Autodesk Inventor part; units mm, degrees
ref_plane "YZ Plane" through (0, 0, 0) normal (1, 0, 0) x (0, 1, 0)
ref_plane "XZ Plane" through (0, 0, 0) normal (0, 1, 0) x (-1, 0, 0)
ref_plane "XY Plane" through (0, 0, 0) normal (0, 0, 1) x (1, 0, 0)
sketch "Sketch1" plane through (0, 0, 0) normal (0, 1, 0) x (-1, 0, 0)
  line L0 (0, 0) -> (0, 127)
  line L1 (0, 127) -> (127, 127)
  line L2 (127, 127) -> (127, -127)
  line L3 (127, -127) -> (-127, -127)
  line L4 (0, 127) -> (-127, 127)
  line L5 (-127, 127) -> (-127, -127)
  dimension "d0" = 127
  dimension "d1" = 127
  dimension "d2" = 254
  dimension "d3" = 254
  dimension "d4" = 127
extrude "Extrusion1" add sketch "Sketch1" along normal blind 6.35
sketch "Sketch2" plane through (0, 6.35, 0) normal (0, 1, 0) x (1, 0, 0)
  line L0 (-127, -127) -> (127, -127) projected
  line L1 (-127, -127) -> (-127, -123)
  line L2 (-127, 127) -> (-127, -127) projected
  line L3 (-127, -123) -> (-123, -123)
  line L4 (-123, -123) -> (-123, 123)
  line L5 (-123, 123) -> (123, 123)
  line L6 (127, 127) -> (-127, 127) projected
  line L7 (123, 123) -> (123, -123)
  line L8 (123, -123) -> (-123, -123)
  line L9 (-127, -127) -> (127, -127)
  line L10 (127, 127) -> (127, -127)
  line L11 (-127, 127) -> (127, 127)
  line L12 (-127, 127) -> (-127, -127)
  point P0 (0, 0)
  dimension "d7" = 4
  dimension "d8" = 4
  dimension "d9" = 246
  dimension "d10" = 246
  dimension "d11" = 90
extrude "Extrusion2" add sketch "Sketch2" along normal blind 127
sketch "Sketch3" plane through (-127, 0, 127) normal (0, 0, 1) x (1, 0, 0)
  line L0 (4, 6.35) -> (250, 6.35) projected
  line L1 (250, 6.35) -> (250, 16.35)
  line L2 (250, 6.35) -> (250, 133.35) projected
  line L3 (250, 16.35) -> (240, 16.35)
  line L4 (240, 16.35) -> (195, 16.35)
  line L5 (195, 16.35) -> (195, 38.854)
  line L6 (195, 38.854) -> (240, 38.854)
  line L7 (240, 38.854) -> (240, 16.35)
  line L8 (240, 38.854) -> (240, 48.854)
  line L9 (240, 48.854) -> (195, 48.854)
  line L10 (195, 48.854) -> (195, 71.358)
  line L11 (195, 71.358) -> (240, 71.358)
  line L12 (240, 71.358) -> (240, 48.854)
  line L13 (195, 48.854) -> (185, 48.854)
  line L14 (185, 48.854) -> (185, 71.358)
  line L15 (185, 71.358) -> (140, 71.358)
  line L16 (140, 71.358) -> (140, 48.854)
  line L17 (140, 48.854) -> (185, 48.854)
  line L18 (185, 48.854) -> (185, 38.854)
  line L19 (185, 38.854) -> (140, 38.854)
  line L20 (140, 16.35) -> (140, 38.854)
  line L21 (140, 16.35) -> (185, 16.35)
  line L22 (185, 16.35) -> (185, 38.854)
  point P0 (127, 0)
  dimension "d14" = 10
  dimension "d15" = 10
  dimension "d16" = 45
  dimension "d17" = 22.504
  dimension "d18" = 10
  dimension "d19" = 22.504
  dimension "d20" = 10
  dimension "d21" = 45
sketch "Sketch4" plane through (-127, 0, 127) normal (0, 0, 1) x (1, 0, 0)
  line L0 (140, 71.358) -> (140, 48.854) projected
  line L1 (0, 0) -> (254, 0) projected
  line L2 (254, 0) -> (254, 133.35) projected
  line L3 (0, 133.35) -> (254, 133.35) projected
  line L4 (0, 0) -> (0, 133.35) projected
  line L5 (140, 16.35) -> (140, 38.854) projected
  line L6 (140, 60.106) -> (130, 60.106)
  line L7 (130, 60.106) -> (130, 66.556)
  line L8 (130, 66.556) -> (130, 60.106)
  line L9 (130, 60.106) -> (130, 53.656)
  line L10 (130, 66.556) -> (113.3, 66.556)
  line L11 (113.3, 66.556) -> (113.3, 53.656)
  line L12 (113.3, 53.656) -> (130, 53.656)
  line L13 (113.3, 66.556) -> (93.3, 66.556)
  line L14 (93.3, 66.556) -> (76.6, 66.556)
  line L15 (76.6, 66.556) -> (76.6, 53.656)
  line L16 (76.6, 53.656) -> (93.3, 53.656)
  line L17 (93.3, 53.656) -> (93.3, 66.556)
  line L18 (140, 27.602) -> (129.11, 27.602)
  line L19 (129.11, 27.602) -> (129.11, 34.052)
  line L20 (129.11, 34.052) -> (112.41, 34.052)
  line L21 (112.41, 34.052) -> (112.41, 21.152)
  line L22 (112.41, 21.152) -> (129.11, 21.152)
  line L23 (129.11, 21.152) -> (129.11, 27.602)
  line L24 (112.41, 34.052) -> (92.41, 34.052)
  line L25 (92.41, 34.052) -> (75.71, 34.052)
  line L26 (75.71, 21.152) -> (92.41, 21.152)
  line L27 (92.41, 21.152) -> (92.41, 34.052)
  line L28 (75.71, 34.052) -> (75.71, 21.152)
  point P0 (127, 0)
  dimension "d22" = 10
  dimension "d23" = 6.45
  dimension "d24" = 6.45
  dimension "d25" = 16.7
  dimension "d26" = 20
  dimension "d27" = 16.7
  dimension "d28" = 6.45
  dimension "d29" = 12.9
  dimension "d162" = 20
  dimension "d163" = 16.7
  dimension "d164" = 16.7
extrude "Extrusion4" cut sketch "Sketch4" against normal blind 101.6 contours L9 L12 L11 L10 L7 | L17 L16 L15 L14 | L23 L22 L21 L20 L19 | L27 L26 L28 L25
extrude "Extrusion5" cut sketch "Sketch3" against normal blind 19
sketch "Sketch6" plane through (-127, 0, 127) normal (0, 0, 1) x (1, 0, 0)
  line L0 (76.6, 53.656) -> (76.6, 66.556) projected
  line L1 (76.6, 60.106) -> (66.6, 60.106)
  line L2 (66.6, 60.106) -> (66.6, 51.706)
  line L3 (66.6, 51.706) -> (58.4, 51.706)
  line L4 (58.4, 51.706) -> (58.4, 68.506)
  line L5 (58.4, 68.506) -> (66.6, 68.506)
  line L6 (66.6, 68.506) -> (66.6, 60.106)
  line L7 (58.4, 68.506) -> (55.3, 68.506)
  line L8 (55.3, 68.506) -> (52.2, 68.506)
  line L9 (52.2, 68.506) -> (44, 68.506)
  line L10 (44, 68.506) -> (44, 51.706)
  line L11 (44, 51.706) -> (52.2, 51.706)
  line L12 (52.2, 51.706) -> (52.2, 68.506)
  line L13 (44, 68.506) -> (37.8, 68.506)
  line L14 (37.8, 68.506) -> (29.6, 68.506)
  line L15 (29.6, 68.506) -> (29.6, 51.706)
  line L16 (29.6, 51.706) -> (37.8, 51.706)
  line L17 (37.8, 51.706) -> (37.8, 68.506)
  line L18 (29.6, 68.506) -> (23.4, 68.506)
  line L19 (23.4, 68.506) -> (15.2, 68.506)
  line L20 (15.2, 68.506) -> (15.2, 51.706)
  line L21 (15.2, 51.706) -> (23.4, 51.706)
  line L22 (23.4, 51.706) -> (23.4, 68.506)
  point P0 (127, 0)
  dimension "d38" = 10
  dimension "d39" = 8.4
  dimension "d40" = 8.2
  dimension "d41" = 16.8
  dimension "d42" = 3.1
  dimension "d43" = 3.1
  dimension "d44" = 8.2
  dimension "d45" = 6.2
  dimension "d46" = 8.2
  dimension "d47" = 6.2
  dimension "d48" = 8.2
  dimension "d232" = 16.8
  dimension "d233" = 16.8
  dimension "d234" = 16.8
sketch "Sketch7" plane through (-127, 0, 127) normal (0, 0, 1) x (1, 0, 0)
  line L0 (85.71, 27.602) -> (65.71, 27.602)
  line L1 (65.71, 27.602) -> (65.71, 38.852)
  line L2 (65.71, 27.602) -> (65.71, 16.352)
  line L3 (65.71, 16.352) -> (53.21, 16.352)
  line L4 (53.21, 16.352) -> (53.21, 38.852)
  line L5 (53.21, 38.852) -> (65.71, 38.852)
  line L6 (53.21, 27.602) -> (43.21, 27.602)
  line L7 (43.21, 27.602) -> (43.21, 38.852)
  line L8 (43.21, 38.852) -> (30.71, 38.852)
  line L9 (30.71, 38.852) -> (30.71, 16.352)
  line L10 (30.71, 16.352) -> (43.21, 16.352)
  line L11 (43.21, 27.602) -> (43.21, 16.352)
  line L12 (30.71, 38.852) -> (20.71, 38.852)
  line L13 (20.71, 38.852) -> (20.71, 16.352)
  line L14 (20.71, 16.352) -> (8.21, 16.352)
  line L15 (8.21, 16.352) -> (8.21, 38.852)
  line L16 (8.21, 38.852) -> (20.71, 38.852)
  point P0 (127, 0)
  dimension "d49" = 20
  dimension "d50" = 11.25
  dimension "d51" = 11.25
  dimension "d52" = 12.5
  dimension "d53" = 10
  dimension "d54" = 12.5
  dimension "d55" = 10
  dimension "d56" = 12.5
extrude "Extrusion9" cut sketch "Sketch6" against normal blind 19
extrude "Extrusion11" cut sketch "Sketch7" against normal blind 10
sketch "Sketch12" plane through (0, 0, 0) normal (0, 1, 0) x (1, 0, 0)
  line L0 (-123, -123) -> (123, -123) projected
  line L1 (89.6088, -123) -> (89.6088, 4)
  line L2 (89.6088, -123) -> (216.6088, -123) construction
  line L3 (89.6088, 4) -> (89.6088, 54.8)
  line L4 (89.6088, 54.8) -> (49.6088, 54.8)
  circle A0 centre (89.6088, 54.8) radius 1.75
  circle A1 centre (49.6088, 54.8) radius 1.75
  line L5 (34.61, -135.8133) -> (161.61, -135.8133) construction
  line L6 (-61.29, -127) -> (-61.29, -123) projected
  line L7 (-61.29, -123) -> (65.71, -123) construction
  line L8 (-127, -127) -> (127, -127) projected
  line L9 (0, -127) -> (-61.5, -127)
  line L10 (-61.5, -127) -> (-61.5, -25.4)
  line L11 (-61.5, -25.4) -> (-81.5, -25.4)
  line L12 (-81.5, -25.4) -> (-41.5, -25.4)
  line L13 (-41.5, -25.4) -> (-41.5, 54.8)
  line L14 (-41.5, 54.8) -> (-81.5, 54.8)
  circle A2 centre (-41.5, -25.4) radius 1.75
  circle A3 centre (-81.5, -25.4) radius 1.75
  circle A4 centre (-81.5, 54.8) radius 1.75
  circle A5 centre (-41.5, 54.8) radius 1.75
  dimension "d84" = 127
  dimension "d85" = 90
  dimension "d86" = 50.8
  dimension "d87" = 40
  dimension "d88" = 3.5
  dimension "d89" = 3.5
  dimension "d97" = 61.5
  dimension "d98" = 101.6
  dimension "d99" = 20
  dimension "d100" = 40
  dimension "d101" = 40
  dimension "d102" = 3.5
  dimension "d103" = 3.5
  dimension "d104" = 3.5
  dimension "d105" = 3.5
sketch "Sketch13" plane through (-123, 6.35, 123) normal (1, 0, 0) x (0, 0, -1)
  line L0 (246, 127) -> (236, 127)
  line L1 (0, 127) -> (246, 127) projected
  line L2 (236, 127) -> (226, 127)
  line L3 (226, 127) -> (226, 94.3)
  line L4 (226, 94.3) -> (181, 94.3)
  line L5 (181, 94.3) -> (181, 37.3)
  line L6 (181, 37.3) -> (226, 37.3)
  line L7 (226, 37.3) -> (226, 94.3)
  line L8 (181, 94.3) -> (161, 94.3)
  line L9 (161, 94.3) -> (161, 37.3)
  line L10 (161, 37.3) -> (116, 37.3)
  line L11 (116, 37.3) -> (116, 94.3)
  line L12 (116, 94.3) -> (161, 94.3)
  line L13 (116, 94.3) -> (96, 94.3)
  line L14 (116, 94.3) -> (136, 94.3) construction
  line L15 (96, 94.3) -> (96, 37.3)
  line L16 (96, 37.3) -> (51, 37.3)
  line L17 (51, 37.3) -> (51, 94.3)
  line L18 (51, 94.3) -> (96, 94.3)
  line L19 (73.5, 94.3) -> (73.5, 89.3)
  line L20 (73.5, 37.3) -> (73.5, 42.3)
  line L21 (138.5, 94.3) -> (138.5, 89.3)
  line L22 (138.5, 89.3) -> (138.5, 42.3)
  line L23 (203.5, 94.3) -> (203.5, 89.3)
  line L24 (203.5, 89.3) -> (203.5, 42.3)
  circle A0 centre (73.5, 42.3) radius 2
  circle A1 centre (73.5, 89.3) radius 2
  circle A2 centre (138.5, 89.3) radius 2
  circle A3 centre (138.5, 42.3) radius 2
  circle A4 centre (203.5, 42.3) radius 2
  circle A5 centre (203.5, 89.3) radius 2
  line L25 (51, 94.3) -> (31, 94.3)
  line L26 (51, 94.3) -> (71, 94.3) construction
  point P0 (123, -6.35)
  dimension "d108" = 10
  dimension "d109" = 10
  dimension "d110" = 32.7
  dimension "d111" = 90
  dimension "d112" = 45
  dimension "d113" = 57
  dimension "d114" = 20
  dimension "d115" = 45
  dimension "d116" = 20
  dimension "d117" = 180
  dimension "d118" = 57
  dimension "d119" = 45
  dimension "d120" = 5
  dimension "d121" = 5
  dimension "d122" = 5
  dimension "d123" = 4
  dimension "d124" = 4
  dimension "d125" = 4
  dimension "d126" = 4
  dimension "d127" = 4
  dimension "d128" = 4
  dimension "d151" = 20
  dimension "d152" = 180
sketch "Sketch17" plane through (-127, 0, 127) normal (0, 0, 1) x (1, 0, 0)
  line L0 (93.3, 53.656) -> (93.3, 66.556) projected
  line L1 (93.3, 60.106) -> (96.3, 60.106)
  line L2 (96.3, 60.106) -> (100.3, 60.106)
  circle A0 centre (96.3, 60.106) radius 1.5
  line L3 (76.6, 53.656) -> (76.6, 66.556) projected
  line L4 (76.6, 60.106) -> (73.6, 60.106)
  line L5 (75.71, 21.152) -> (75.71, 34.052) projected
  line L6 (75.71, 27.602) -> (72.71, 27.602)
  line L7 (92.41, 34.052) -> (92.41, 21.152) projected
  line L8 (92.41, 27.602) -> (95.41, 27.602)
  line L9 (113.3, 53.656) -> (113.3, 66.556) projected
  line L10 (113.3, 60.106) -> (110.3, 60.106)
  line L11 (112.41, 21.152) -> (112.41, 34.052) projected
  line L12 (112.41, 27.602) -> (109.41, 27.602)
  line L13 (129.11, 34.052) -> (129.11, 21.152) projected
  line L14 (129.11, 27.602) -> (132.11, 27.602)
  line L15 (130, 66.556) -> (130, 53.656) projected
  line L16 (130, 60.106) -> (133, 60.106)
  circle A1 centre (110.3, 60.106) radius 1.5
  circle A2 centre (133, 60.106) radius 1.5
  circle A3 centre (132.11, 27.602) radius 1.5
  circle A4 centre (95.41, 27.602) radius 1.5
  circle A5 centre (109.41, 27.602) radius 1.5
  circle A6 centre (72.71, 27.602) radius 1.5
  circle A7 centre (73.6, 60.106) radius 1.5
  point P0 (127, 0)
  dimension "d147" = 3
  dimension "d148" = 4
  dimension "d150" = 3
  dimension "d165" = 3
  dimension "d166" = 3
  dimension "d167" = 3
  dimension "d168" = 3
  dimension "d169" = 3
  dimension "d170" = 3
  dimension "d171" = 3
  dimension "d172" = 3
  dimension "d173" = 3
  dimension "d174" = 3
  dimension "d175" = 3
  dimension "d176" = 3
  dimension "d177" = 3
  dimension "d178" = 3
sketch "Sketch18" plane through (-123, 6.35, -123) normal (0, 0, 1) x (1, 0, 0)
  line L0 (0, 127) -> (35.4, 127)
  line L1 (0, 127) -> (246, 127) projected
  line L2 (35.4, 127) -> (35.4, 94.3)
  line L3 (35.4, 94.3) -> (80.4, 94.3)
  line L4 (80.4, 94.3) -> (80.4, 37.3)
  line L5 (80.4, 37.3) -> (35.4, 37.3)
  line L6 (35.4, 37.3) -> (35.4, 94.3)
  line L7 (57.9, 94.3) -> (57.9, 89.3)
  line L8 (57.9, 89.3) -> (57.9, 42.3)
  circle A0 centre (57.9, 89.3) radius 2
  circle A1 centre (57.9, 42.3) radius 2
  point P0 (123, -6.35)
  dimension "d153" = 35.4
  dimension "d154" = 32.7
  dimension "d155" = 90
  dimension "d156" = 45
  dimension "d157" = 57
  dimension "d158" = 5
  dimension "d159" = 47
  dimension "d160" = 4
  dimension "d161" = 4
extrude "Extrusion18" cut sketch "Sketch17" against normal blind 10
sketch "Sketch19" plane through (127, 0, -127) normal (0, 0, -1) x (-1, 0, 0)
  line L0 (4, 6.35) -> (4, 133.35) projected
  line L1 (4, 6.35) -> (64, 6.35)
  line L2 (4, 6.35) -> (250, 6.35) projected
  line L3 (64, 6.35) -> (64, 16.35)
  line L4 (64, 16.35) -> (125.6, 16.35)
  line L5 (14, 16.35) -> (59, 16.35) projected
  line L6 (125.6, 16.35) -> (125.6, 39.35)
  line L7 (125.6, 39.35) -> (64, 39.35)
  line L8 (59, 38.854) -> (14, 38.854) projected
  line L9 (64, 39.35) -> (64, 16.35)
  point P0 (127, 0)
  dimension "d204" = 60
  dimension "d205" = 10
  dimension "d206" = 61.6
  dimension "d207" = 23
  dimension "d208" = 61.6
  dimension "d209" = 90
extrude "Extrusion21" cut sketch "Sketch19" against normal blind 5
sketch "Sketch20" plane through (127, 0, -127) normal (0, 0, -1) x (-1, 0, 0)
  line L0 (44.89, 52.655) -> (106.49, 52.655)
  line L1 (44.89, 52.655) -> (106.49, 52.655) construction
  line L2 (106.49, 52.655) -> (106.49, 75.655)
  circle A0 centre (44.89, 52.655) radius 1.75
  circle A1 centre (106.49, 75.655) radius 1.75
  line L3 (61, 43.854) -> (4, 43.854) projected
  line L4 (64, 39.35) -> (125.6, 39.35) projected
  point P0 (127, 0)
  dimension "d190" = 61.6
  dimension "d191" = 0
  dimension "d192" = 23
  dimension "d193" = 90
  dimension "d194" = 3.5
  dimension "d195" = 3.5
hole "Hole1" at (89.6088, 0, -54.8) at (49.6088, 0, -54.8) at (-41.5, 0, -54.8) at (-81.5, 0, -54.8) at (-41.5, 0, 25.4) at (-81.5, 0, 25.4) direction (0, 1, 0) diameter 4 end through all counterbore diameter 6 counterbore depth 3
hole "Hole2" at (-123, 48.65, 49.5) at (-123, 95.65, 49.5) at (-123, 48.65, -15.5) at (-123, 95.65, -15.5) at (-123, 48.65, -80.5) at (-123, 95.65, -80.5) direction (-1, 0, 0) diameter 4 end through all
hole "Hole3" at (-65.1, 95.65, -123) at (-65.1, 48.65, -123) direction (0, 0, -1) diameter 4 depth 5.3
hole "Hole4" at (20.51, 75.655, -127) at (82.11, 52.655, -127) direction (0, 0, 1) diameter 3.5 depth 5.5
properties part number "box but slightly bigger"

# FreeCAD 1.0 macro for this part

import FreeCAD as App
import Part
import Sketcher

V = App.Vector
Q = App.Units.Quantity

doc = App.newDocument("Part")
body = doc.addObject("PartDesign::Body", "Body")

sketch1 = doc.addObject("Sketcher::SketchObject", "Sketch")
body.addObject(sketch1)
sketch1.AttachmentSupport = (doc.XZ_Plane, [""])
sketch1.MapMode = "FlatFace"
sketch1.addGeometry(Part.LineSegment(V(-127, 127, 0), V(127, 127, 0)), False)
sketch1.addGeometry(Part.LineSegment(V(127, 127, 0), V(127, -127, 0)), False)
sketch1.addGeometry(Part.LineSegment(V(127, -127, 0), V(-127, -127, 0)), False)
sketch1.addGeometry(Part.LineSegment(V(-127, -127, 0), V(-127, 127, 0)), False)
sketch1.addConstraint(Sketcher.Constraint("Coincident", 0, 2, 1, 1))
sketch1.addConstraint(Sketcher.Constraint("Coincident", 1, 2, 2, 1))
sketch1.addConstraint(Sketcher.Constraint("Coincident", 2, 2, 3, 1))
sketch1.addConstraint(Sketcher.Constraint("Coincident", 3, 2, 0, 1))
sketch1.addConstraint(Sketcher.Constraint("Horizontal", 0))
sketch1.addConstraint(Sketcher.Constraint("Vertical", 1))
sketch1.addConstraint(Sketcher.Constraint("Horizontal", 2))
sketch1.addConstraint(Sketcher.Constraint("Vertical", 3))
sketch1.addConstraint(Sketcher.Constraint("Symmetric", 0, 2, 2, 2, -1, 1))
sketch1.addConstraint(Sketcher.Constraint("Equal", 2, 1))
sketch1.addConstraint(Sketcher.Constraint("DistanceX", 0, 1, 0, 2, Q("254 mm")))
pad1 = doc.addObject("PartDesign::Pad", "Pad")
body.addObject(pad1)
pad1.Profile = sketch1
pad1.Length = 6.35
pad1.Reversed = True

sketch2 = doc.addObject("Sketcher::SketchObject", "Sketch001")
body.addObject(sketch2)
sketch2.AttachmentSupport = (doc.XZ_Plane, [""])
sketch2.MapMode = "FlatFace"
sketch2.AttachmentOffset = App.Placement(V(0, 0, -6.35), App.Rotation())
sketch2.addGeometry(Part.LineSegment(V(-127, 123, 0), V(-127, 127, 0)), False)
sketch2.addGeometry(Part.LineSegment(V(-127, 127, 0), V(127, 127, 0)), False)
sketch2.addGeometry(Part.LineSegment(V(127, 127, 0), V(127, -127, 0)), False)
sketch2.addGeometry(Part.LineSegment(V(127, -127, 0), V(-127, -127, 0)), False)
sketch2.addGeometry(Part.LineSegment(V(-127, -127, 0), V(-127, 123, 0)), False)
sketch2.addGeometry(Part.LineSegment(V(123, 123, 0), V(-123, 123, 0)), False)
sketch2.addGeometry(Part.LineSegment(V(-123, 123, 0), V(-123, -123, 0)), False)
sketch2.addGeometry(Part.LineSegment(V(-123, -123, 0), V(123, -123, 0)), False)
sketch2.addGeometry(Part.LineSegment(V(123, -123, 0), V(123, 123, 0)), False)
sketch2.addConstraint(Sketcher.Constraint("Coincident", 0, 2, 1, 1))
sketch2.addConstraint(Sketcher.Constraint("Coincident", 1, 2, 2, 1))
sketch2.addConstraint(Sketcher.Constraint("Coincident", 2, 2, 3, 1))
sketch2.addConstraint(Sketcher.Constraint("Coincident", 3, 2, 4, 1))
sketch2.addConstraint(Sketcher.Constraint("Coincident", 4, 2, 0, 1))
sketch2.addConstraint(Sketcher.Constraint("Coincident", 5, 2, 6, 1))
sketch2.addConstraint(Sketcher.Constraint("Coincident", 6, 2, 7, 1))
sketch2.addConstraint(Sketcher.Constraint("Coincident", 7, 2, 8, 1))
sketch2.addConstraint(Sketcher.Constraint("Coincident", 8, 2, 5, 1))
sketch2.addConstraint(Sketcher.Constraint("Vertical", 0))
sketch2.addConstraint(Sketcher.Constraint("Horizontal", 1))
sketch2.addConstraint(Sketcher.Constraint("Vertical", 2))
sketch2.addConstraint(Sketcher.Constraint("Horizontal", 3))
sketch2.addConstraint(Sketcher.Constraint("Vertical", 4))
sketch2.addConstraint(Sketcher.Constraint("Horizontal", 5))
sketch2.addConstraint(Sketcher.Constraint("Vertical", 6))
sketch2.addConstraint(Sketcher.Constraint("Horizontal", 7))
sketch2.addConstraint(Sketcher.Constraint("Vertical", 8))
sketch2.addConstraint(Sketcher.Constraint("Symmetric", 0, 2, 2, 2, -1, 1))
sketch2.addConstraint(Sketcher.Constraint("Symmetric", 5, 2, 7, 2, -1, 1))
sketch2.addConstraint(Sketcher.Constraint("Horizontal", 4, 2, 5, 2))
sketch2.addConstraint(Sketcher.Constraint("Equal", 3, 2))
sketch2.addConstraint(Sketcher.Constraint("Equal", 7, 6))
sketch2.addConstraint(Sketcher.Constraint("DistanceX", 5, 2, 5, 1, Q("246 mm")))
sketch2.addConstraint(Sketcher.Constraint("DistanceY", 0, 1, 0, 2, Q("4 mm")))
pad2 = doc.addObject("PartDesign::Pad", "Pad001")
body.addObject(pad2)
pad2.Profile = sketch2
pad2.Length = 127
pad2.Reversed = True

sketch3 = doc.addObject("Sketcher::SketchObject", "Sketch002")
body.addObject(sketch3)
sketch3.AttachmentSupport = (doc.XY_Plane, [""])
sketch3.MapMode = "FlatFace"
sketch3.AttachmentOffset = App.Placement(V(0, 0, 127), App.Rotation())
sketch3.addGeometry(Part.LineSegment(V(3, 54, 0), V(3, 67, 0)), False)
sketch3.addGeometry(Part.LineSegment(V(3, 67, 0), V(-14, 67, 0)), False)
sketch3.addGeometry(Part.LineSegment(V(-14, 67, 0), V(-14, 54, 0)), False)
sketch3.addGeometry(Part.LineSegment(V(-14, 54, 0), V(3, 54, 0)), False)
sketch3.addGeometry(Part.LineSegment(V(-34, 54, 0), V(-34, 67, 0)), False)
sketch3.addGeometry(Part.LineSegment(V(-34, 67, 0), V(-50, 67, 0)), False)
sketch3.addGeometry(Part.LineSegment(V(-50, 67, 0), V(-50, 54, 0)), False)
sketch3.addGeometry(Part.LineSegment(V(-50, 54, 0), V(-34, 54, 0)), False)
sketch3.addGeometry(Part.LineSegment(V(2, 21, 0), V(2, 34, 0)), False)
sketch3.addGeometry(Part.LineSegment(V(2, 34, 0), V(-15, 34, 0)), False)
sketch3.addGeometry(Part.LineSegment(V(-15, 34, 0), V(-15, 21, 0)), False)
sketch3.addGeometry(Part.LineSegment(V(-15, 21, 0), V(2, 21, 0)), False)
sketch3.addGeometry(Part.LineSegment(V(-35, 21, 0), V(-35, 34, 0)), False)
sketch3.addGeometry(Part.LineSegment(V(-35, 34, 0), V(-51, 34, 0)), False)
sketch3.addGeometry(Part.LineSegment(V(-51, 34, 0), V(-51, 21, 0)), False)
sketch3.addGeometry(Part.LineSegment(V(-51, 21, 0), V(-35, 21, 0)), False)
sketch3.addConstraint(Sketcher.Constraint("Coincident", 0, 2, 1, 1))
sketch3.addConstraint(Sketcher.Constraint("Coincident", 1, 2, 2, 1))
sketch3.addConstraint(Sketcher.Constraint("Coincident", 2, 2, 3, 1))
sketch3.addConstraint(Sketcher.Constraint("Coincident", 3, 2, 0, 1))
sketch3.addConstraint(Sketcher.Constraint("Coincident", 4, 2, 5, 1))
sketch3.addConstraint(Sketcher.Constraint("Coincident", 5, 2, 6, 1))
sketch3.addConstraint(Sketcher.Constraint("Coincident", 6, 2, 7, 1))
sketch3.addConstraint(Sketcher.Constraint("Coincident", 7, 2, 4, 1))
sketch3.addConstraint(Sketcher.Constraint("Coincident", 8, 2, 9, 1))
sketch3.addConstraint(Sketcher.Constraint("Coincident", 9, 2, 10, 1))
sketch3.addConstraint(Sketcher.Constraint("Coincident", 10, 2, 11, 1))
sketch3.addConstraint(Sketcher.Constraint("Coincident", 11, 2, 8, 1))
sketch3.addConstraint(Sketcher.Constraint("Coincident", 12, 2, 13, 1))
sketch3.addConstraint(Sketcher.Constraint("Coincident", 13, 2, 14, 1))
sketch3.addConstraint(Sketcher.Constraint("Coincident", 14, 2, 15, 1))
sketch3.addConstraint(Sketcher.Constraint("Coincident", 15, 2, 12, 1))
sketch3.addConstraint(Sketcher.Constraint("Vertical", 0))
sketch3.addConstraint(Sketcher.Constraint("Horizontal", 1))
sketch3.addConstraint(Sketcher.Constraint("Vertical", 2))
sketch3.addConstraint(Sketcher.Constraint("Horizontal", 3))
sketch3.addConstraint(Sketcher.Constraint("Vertical", 4))
sketch3.addConstraint(Sketcher.Constraint("Horizontal", 5))
sketch3.addConstraint(Sketcher.Constraint("Vertical", 6))
sketch3.addConstraint(Sketcher.Constraint("Horizontal", 7))
sketch3.addConstraint(Sketcher.Constraint("Vertical", 8))
sketch3.addConstraint(Sketcher.Constraint("Horizontal", 9))
sketch3.addConstraint(Sketcher.Constraint("Vertical", 10))
sketch3.addConstraint(Sketcher.Constraint("Horizontal", 11))
sketch3.addConstraint(Sketcher.Constraint("Vertical", 12))
sketch3.addConstraint(Sketcher.Constraint("Horizontal", 13))
sketch3.addConstraint(Sketcher.Constraint("Vertical", 14))
sketch3.addConstraint(Sketcher.Constraint("Horizontal", 15))
sketch3.addConstraint(Sketcher.Constraint("Horizontal", 1, 2, 4, 2))
sketch3.addConstraint(Sketcher.Constraint("Horizontal", 3, 2, 6, 2))
sketch3.addConstraint(Sketcher.Constraint("Horizontal", 9, 2, 12, 2))
sketch3.addConstraint(Sketcher.Constraint("Horizontal", 11, 2, 14, 2))
sketch3.addConstraint(Sketcher.Constraint("Equal", 3, 5))
sketch3.addConstraint(Sketcher.Constraint("Equal", 7, 9))
sketch3.addConstraint(Sketcher.Constraint("Equal", 11, 13))
sketch3.addConstraint(Sketcher.Constraint("Equal", 6, 8))
sketch3.addConstraint(Sketcher.Constraint("DistanceX", 1, 2, 1, 1, Q("16.7 mm")))
sketch3.addConstraint(Sketcher.Constraint("DistanceY", 0, 1, 0, 2, Q("12.9 mm")))
sketch3.addConstraint(Sketcher.Constraint("DistanceX", 4, 2, 1, 2, Q("20 mm")))
sketch3.addConstraint(Sketcher.Constraint("DistanceX", 12, 2, 9, 2, Q("20 mm")))
sketch3.addConstraint(Sketcher.Constraint("DistanceX", -1, 1, 0, 2, Q("3 mm")))
sketch3.addConstraint(Sketcher.Constraint("DistanceX", -1, 1, 8, 2, Q("2.11 mm")))
sketch3.addConstraint(Sketcher.Constraint("DistanceY", -1, 1, 0, 2, Q("66.556 mm")))
sketch3.addConstraint(Sketcher.Constraint("DistanceY", -1, 1, 8, 2, Q("34.052 mm")))
pocket1 = doc.addObject("PartDesign::Pocket", "Pocket")
body.addObject(pocket1)
pocket1.Profile = sketch3
pocket1.Length = 101.6

sketch4 = doc.addObject("Sketcher::SketchObject", "Sketch003")
body.addObject(sketch4)
sketch4.AttachmentSupport = (doc.XY_Plane, [""])
sketch4.MapMode = "FlatFace"
sketch4.AttachmentOffset = App.Placement(V(0, 0, 127), App.Rotation())
sketch4.addGeometry(Part.LineSegment(V(58, 16, 0), V(58, 39, 0)), False)
sketch4.addGeometry(Part.LineSegment(V(58, 39, 0), V(13, 39, 0)), False)
sketch4.addGeometry(Part.LineSegment(V(13, 39, 0), V(13, 16, 0)), False)
sketch4.addGeometry(Part.LineSegment(V(13, 16, 0), V(58, 16, 0)), False)
sketch4.addGeometry(Part.LineSegment(V(13, 49, 0), V(58, 49, 0)), False)
sketch4.addGeometry(Part.LineSegment(V(58, 49, 0), V(58, 71, 0)), False)
sketch4.addGeometry(Part.LineSegment(V(58, 71, 0), V(13, 71, 0)), False)
sketch4.addGeometry(Part.LineSegment(V(13, 71, 0), V(13, 49, 0)), False)
sketch4.addGeometry(Part.LineSegment(V(68, 49, 0), V(113, 49, 0)), False)
sketch4.addGeometry(Part.LineSegment(V(113, 49, 0), V(113, 71, 0)), False)
sketch4.addGeometry(Part.LineSegment(V(113, 71, 0), V(68, 71, 0)), False)
sketch4.addGeometry(Part.LineSegment(V(68, 71, 0), V(68, 49, 0)), False)
sketch4.addGeometry(Part.LineSegment(V(68, 16, 0), V(113, 16, 0)), False)
sketch4.addGeometry(Part.LineSegment(V(113, 16, 0), V(113, 39, 0)), False)
sketch4.addGeometry(Part.LineSegment(V(113, 39, 0), V(68, 39, 0)), False)
sketch4.addGeometry(Part.LineSegment(V(68, 39, 0), V(68, 16, 0)), False)
sketch4.addConstraint(Sketcher.Constraint("Coincident", 0, 2, 1, 1))
sketch4.addConstraint(Sketcher.Constraint("Coincident", 1, 2, 2, 1))
sketch4.addConstraint(Sketcher.Constraint("Coincident", 2, 2, 3, 1))
sketch4.addConstraint(Sketcher.Constraint("Coincident", 3, 2, 0, 1))
sketch4.addConstraint(Sketcher.Constraint("Coincident", 4, 2, 5, 1))
sketch4.addConstraint(Sketcher.Constraint("Coincident", 5, 2, 6, 1))
sketch4.addConstraint(Sketcher.Constraint("Coincident", 6, 2, 7, 1))
sketch4.addConstraint(Sketcher.Constraint("Coincident", 7, 2, 4, 1))
sketch4.addConstraint(Sketcher.Constraint("Coincident", 8, 2, 9, 1))
sketch4.addConstraint(Sketcher.Constraint("Coincident", 9, 2, 10, 1))
sketch4.addConstraint(Sketcher.Constraint("Coincident", 10, 2, 11, 1))
sketch4.addConstraint(Sketcher.Constraint("Coincident", 11, 2, 8, 1))
sketch4.addConstraint(Sketcher.Constraint("Coincident", 12, 2, 13, 1))
sketch4.addConstraint(Sketcher.Constraint("Coincident", 13, 2, 14, 1))
sketch4.addConstraint(Sketcher.Constraint("Coincident", 14, 2, 15, 1))
sketch4.addConstraint(Sketcher.Constraint("Coincident", 15, 2, 12, 1))
sketch4.addConstraint(Sketcher.Constraint("Vertical", 0))
sketch4.addConstraint(Sketcher.Constraint("Horizontal", 1))
sketch4.addConstraint(Sketcher.Constraint("Vertical", 2))
sketch4.addConstraint(Sketcher.Constraint("Horizontal", 3))
sketch4.addConstraint(Sketcher.Constraint("Horizontal", 4))
sketch4.addConstraint(Sketcher.Constraint("Vertical", 5))
sketch4.addConstraint(Sketcher.Constraint("Horizontal", 6))
sketch4.addConstraint(Sketcher.Constraint("Vertical", 7))
sketch4.addConstraint(Sketcher.Constraint("Horizontal", 8))
sketch4.addConstraint(Sketcher.Constraint("Vertical", 9))
sketch4.addConstraint(Sketcher.Constraint("Horizontal", 10))
sketch4.addConstraint(Sketcher.Constraint("Vertical", 11))
sketch4.addConstraint(Sketcher.Constraint("Horizontal", 12))
sketch4.addConstraint(Sketcher.Constraint("Vertical", 13))
sketch4.addConstraint(Sketcher.Constraint("Horizontal", 14))
sketch4.addConstraint(Sketcher.Constraint("Vertical", 15))
sketch4.addConstraint(Sketcher.Constraint("Horizontal", 7, 2, 8, 2))
sketch4.addConstraint(Sketcher.Constraint("Horizontal", 6, 2, 9, 2))
sketch4.addConstraint(Sketcher.Constraint("Horizontal", 3, 2, 12, 2))
sketch4.addConstraint(Sketcher.Constraint("Horizontal", 1, 2, 13, 2))
sketch4.addConstraint(Sketcher.Constraint("Vertical", 3, 2, 4, 2))
sketch4.addConstraint(Sketcher.Constraint("Vertical", 2, 2, 6, 2))
sketch4.addConstraint(Sketcher.Constraint("Vertical", 9, 2, 12, 2))
sketch4.addConstraint(Sketcher.Constraint("Vertical", 11, 2, 14, 2))
sketch4.addConstraint(Sketcher.Constraint("Equal", 6, 8))
sketch4.addConstraint(Sketcher.Constraint("Equal", 2, 5))
sketch4.addConstraint(Sketcher.Constraint("DistanceX", 1, 2, 1, 1, Q("45 mm")))
sketch4.addConstraint(Sketcher.Constraint("DistanceY", 0, 2, 4, 2, Q("10 mm")))
sketch4.addConstraint(Sketcher.Constraint("DistanceX", 5, 2, 10, 2, Q("10 mm")))
sketch4.addConstraint(Sketcher.Constraint("DistanceY", 0, 1, 0, 2, Q("22.504 mm")))
sketch4.addConstraint(Sketcher.Constraint("DistanceX", -1, 1, 0, 2, Q("58 mm")))
sketch4.addConstraint(Sketcher.Constraint("DistanceY", -1, 1, 2, 2, Q("16.35 mm")))
pocket2 = doc.addObject("PartDesign::Pocket", "Pocket001")
body.addObject(pocket2)
pocket2.Profile = sketch4
pocket2.Length = 19

sketch5 = doc.addObject("Sketcher::SketchObject", "Sketch004")
body.addObject(sketch5)
sketch5.AttachmentSupport = (doc.XY_Plane, [""])
sketch5.MapMode = "FlatFace"
sketch5.AttachmentOffset = App.Placement(V(0, 0, 127), App.Rotation())
sketch5.addGeometry(Part.LineSegment(V(-104, 52, 0), V(-104, 69, 0)), False)
sketch5.addGeometry(Part.LineSegment(V(-104, 69, 0), V(-112, 69, 0)), False)
sketch5.addGeometry(Part.LineSegment(V(-112, 69, 0), V(-112, 52, 0)), False)
sketch5.addGeometry(Part.LineSegment(V(-112, 52, 0), V(-104, 52, 0)), False)
sketch5.addGeometry(Part.LineSegment(V(-89, 52, 0), V(-89, 69, 0)), False)
sketch5.addGeometry(Part.LineSegment(V(-89, 69, 0), V(-97, 69, 0)), False)
sketch5.addGeometry(Part.LineSegment(V(-97, 69, 0), V(-97, 52, 0)), False)
sketch5.addGeometry(Part.LineSegment(V(-97, 52, 0), V(-89, 52, 0)), False)
sketch5.addGeometry(Part.LineSegment(V(-75, 52, 0), V(-75, 69, 0)), False)
sketch5.addGeometry(Part.LineSegment(V(-75, 69, 0), V(-83, 69, 0)), False)
sketch5.addGeometry(Part.LineSegment(V(-83, 69, 0), V(-83, 52, 0)), False)
sketch5.addGeometry(Part.LineSegment(V(-83, 52, 0), V(-75, 52, 0)), False)
sketch5.addGeometry(Part.LineSegment(V(-60, 52, 0), V(-60, 69, 0)), False)
sketch5.addGeometry(Part.LineSegment(V(-60, 69, 0), V(-69, 69, 0)), False)
sketch5.addGeometry(Part.LineSegment(V(-69, 69, 0), V(-69, 52, 0)), False)
sketch5.addGeometry(Part.LineSegment(V(-69, 52, 0), V(-60, 52, 0)), False)
sketch5.addConstraint(Sketcher.Constraint("Coincident", 0, 2, 1, 1))
sketch5.addConstraint(Sketcher.Constraint("Coincident", 1, 2, 2, 1))
sketch5.addConstraint(Sketcher.Constraint("Coincident", 2, 2, 3, 1))
sketch5.addConstraint(Sketcher.Constraint("Coincident", 3, 2, 0, 1))
sketch5.addConstraint(Sketcher.Constraint("Coincident", 4, 2, 5, 1))
sketch5.addConstraint(Sketcher.Constraint("Coincident", 5, 2, 6, 1))
sketch5.addConstraint(Sketcher.Constraint("Coincident", 6, 2, 7, 1))
sketch5.addConstraint(Sketcher.Constraint("Coincident", 7, 2, 4, 1))
sketch5.addConstraint(Sketcher.Constraint("Coincident", 8, 2, 9, 1))
sketch5.addConstraint(Sketcher.Constraint("Coincident", 9, 2, 10, 1))
sketch5.addConstraint(Sketcher.Constraint("Coincident", 10, 2, 11, 1))
sketch5.addConstraint(Sketcher.Constraint("Coincident", 11, 2, 8, 1))
sketch5.addConstraint(Sketcher.Constraint("Coincident", 12, 2, 13, 1))
sketch5.addConstraint(Sketcher.Constraint("Coincident", 13, 2, 14, 1))
sketch5.addConstraint(Sketcher.Constraint("Coincident", 14, 2, 15, 1))
sketch5.addConstraint(Sketcher.Constraint("Coincident", 15, 2, 12, 1))
sketch5.addConstraint(Sketcher.Constraint("Vertical", 0))
sketch5.addConstraint(Sketcher.Constraint("Horizontal", 1))
sketch5.addConstraint(Sketcher.Constraint("Vertical", 2))
sketch5.addConstraint(Sketcher.Constraint("Horizontal", 3))
sketch5.addConstraint(Sketcher.Constraint("Vertical", 4))
sketch5.addConstraint(Sketcher.Constraint("Horizontal", 5))
sketch5.addConstraint(Sketcher.Constraint("Vertical", 6))
sketch5.addConstraint(Sketcher.Constraint("Horizontal", 7))
sketch5.addConstraint(Sketcher.Constraint("Vertical", 8))
sketch5.addConstraint(Sketcher.Constraint("Horizontal", 9))
sketch5.addConstraint(Sketcher.Constraint("Vertical", 10))
sketch5.addConstraint(Sketcher.Constraint("Horizontal", 11))
sketch5.addConstraint(Sketcher.Constraint("Vertical", 12))
sketch5.addConstraint(Sketcher.Constraint("Horizontal", 13))
sketch5.addConstraint(Sketcher.Constraint("Vertical", 14))
sketch5.addConstraint(Sketcher.Constraint("Horizontal", 15))
sketch5.addConstraint(Sketcher.Constraint("Horizontal", 1, 2, 4, 2))
sketch5.addConstraint(Sketcher.Constraint("Horizontal", 3, 2, 6, 2))
sketch5.addConstraint(Sketcher.Constraint("Horizontal", 5, 2, 8, 2))
sketch5.addConstraint(Sketcher.Constraint("Horizontal", 7, 2, 10, 2))
sketch5.addConstraint(Sketcher.Constraint("Horizontal", 9, 2, 12, 2))
sketch5.addConstraint(Sketcher.Constraint("Horizontal", 11, 2, 14, 2))
sketch5.addConstraint(Sketcher.Constraint("Equal", 3, 5))
sketch5.addConstraint(Sketcher.Constraint("Equal", 7, 9))
sketch5.addConstraint(Sketcher.Constraint("Equal", 11, 13))
sketch5.addConstraint(Sketcher.Constraint("DistanceX", 1, 2, 1, 1, Q("8.2 mm")))
sketch5.addConstraint(Sketcher.Constraint("DistanceY", 0, 1, 0, 2, Q("16.8 mm")))
sketch5.addConstraint(Sketcher.Constraint("DistanceX", 0, 2, 5, 2, Q("6.2 mm")))
sketch5.addConstraint(Sketcher.Constraint("DistanceX", 4, 2, 9, 2, Q("6.2 mm")))
sketch5.addConstraint(Sketcher.Constraint("DistanceX", 8, 2, 13, 2, Q("6.2 mm")))
sketch5.addConstraint(Sketcher.Constraint("DistanceX", 9, 2, -1, 1, Q("83 mm")))
sketch5.addConstraint(Sketcher.Constraint("DistanceY", -1, 1, 0, 2, Q("68.506 mm")))
pocket3 = doc.addObject("PartDesign::Pocket", "Pocket002")
body.addObject(pocket3)
pocket3.Profile = sketch5
pocket3.Length = 19

sketch6 = doc.addObject("Sketcher::SketchObject", "Sketch005")
body.addObject(sketch6)
sketch6.AttachmentSupport = (doc.XY_Plane, [""])
sketch6.MapMode = "FlatFace"
sketch6.AttachmentOffset = App.Placement(V(0, 0, 127), App.Rotation())
sketch6.addGeometry(Part.LineSegment(V(-61, 16, 0), V(-61, 39, 0)), False)
sketch6.addGeometry(Part.LineSegment(V(-61, 39, 0), V(-74, 39, 0)), False)
sketch6.addGeometry(Part.LineSegment(V(-74, 39, 0), V(-74, 16, 0)), False)
sketch6.addGeometry(Part.LineSegment(V(-74, 16, 0), V(-61, 16, 0)), False)
sketch6.addGeometry(Part.LineSegment(V(-106, 16, 0), V(-106, 39, 0)), False)
sketch6.addGeometry(Part.LineSegment(V(-106, 39, 0), V(-119, 39, 0)), False)
sketch6.addGeometry(Part.LineSegment(V(-119, 39, 0), V(-119, 16, 0)), False)
sketch6.addGeometry(Part.LineSegment(V(-119, 16, 0), V(-106, 16, 0)), False)
sketch6.addGeometry(Part.LineSegment(V(-84, 16, 0), V(-84, 39, 0)), False)
sketch6.addGeometry(Part.LineSegment(V(-84, 39, 0), V(-96, 39, 0)), False)
sketch6.addGeometry(Part.LineSegment(V(-96, 39, 0), V(-96, 16, 0)), False)
sketch6.addGeometry(Part.LineSegment(V(-96, 16, 0), V(-84, 16, 0)), False)
sketch6.addConstraint(Sketcher.Constraint("Coincident", 0, 2, 1, 1))
sketch6.addConstraint(Sketcher.Constraint("Coincident", 1, 2, 2, 1))
sketch6.addConstraint(Sketcher.Constraint("Coincident", 2, 2, 3, 1))
sketch6.addConstraint(Sketcher.Constraint("Coincident", 3, 2, 0, 1))
sketch6.addConstraint(Sketcher.Constraint("Coincident", 4, 2, 5, 1))
sketch6.addConstraint(Sketcher.Constraint("Coincident", 5, 2, 6, 1))
sketch6.addConstraint(Sketcher.Constraint("Coincident", 6, 2, 7, 1))
sketch6.addConstraint(Sketcher.Constraint("Coincident", 7, 2, 4, 1))
sketch6.addConstraint(Sketcher.Constraint("Coincident", 8, 2, 9, 1))
sketch6.addConstraint(Sketcher.Constraint("Coincident", 9, 2, 10, 1))
sketch6.addConstraint(Sketcher.Constraint("Coincident", 10, 2, 11, 1))
sketch6.addConstraint(Sketcher.Constraint("Coincident", 11, 2, 8, 1))
sketch6.addConstraint(Sketcher.Constraint("Vertical", 0))
sketch6.addConstraint(Sketcher.Constraint("Horizontal", 1))
sketch6.addConstraint(Sketcher.Constraint("Vertical", 2))
sketch6.addConstraint(Sketcher.Constraint("Horizontal", 3))
sketch6.addConstraint(Sketcher.Constraint("Vertical", 4))
sketch6.addConstraint(Sketcher.Constraint("Horizontal", 5))
sketch6.addConstraint(Sketcher.Constraint("Vertical", 6))
sketch6.addConstraint(Sketcher.Constraint("Horizontal", 7))
sketch6.addConstraint(Sketcher.Constraint("Vertical", 8))
sketch6.addConstraint(Sketcher.Constraint("Horizontal", 9))
sketch6.addConstraint(Sketcher.Constraint("Vertical", 10))
sketch6.addConstraint(Sketcher.Constraint("Horizontal", 11))
sketch6.addConstraint(Sketcher.Constraint("Horizontal", 1, 2, 4, 2))
sketch6.addConstraint(Sketcher.Constraint("Horizontal", 3, 2, 6, 2))
sketch6.addConstraint(Sketcher.Constraint("Horizontal", 5, 2, 8, 2))
sketch6.addConstraint(Sketcher.Constraint("Horizontal", 7, 2, 10, 2))
sketch6.addConstraint(Sketcher.Constraint("Equal", 3, 5))
sketch6.addConstraint(Sketcher.Constraint("Equal", 7, 9))
sketch6.addConstraint(Sketcher.Constraint("DistanceX", 1, 2, 1, 1, Q("12.5 mm")))
sketch6.addConstraint(Sketcher.Constraint("DistanceX", 8, 2, 1, 2, Q("10 mm")))
sketch6.addConstraint(Sketcher.Constraint("DistanceX", 4, 2, 9, 2, Q("10 mm")))
sketch6.addConstraint(Sketcher.Constraint("DistanceY", 0, 1, 0, 2, Q("22.5 mm")))
sketch6.addConstraint(Sketcher.Constraint("DistanceX", 0, 2, -1, 1, Q("61.29 mm")))
sketch6.addConstraint(Sketcher.Constraint("DistanceY", -1, 1, 0, 2, Q("38.852 mm")))
pocket4 = doc.addObject("PartDesign::Pocket", "Pocket003")
body.addObject(pocket4)
pocket4.Profile = sketch6
pocket4.Length = 10

sketch7 = doc.addObject("Sketcher::SketchObject", "Sketch006")
body.addObject(sketch7)
sketch7.AttachmentSupport = (doc.XY_Plane, [""])
sketch7.MapMode = "FlatFace"
sketch7.AttachmentOffset = App.Placement(V(0, 0, 127), App.Rotation())
sketch7.addGeometry(Part.Circle(V(-30.7, 60.1, 0), V(0, 0, 1), 1.5), False)
sketch7.addGeometry(Part.Circle(V(-16.7, 60.1, 0), V(0, 0, 1), 1.5), False)
sketch7.addGeometry(Part.Circle(V(6, 60.1, 0), V(0, 0, 1), 1.5), False)
sketch7.addGeometry(Part.Circle(V(5.1, 27.6, 0), V(0, 0, 1), 1.5), False)
sketch7.addGeometry(Part.Circle(V(-31.6, 27.6, 0), V(0, 0, 1), 1.5), False)
sketch7.addGeometry(Part.Circle(V(-17.6, 27.6, 0), V(0, 0, 1), 1.5), False)
sketch7.addGeometry(Part.Circle(V(-54.3, 27.6, 0), V(0, 0, 1), 1.5), False)
sketch7.addGeometry(Part.Circle(V(-53.4, 60.1, 0), V(0, 0, 1), 1.5), False)
sketch7.addConstraint(Sketcher.Constraint("Equal", 0, 1))
sketch7.addConstraint(Sketcher.Constraint("Equal", 1, 2))
sketch7.addConstraint(Sketcher.Constraint("Equal", 2, 3))
sketch7.addConstraint(Sketcher.Constraint("Equal", 3, 4))
sketch7.addConstraint(Sketcher.Constraint("Equal", 4, 5))
sketch7.addConstraint(Sketcher.Constraint("Equal", 5, 6))
sketch7.addConstraint(Sketcher.Constraint("Equal", 6, 7))
sketch7.addConstraint(Sketcher.Constraint("Horizontal", 0, 3, 1, 3))
sketch7.addConstraint(Sketcher.Constraint("Horizontal", 1, 3, 2, 3))
sketch7.addConstraint(Sketcher.Constraint("Horizontal", 3, 3, 4, 3))
sketch7.addConstraint(Sketcher.Constraint("Horizontal", 4, 3, 5, 3))
sketch7.addConstraint(Sketcher.Constraint("Horizontal", 5, 3, 6, 3))
sketch7.addConstraint(Sketcher.Constraint("Horizontal", 2, 3, 7, 3))
sketch7.addConstraint(Sketcher.Constraint("Diameter", 0, Q("3 mm")))
sketch7.addConstraint(Sketcher.Constraint("DistanceX", -1, 1, 2, 3, Q("6 mm")))
sketch7.addConstraint(Sketcher.Constraint("DistanceX", 0, 3, 1, 3, Q("14 mm")))
sketch7.addConstraint(Sketcher.Constraint("DistanceX", 4, 3, 5, 3, Q("14 mm")))
sketch7.addConstraint(Sketcher.Constraint("DistanceX", 0, 3, -1, 1, Q("30.7 mm")))
sketch7.addConstraint(Sketcher.Constraint("DistanceX", 7, 3, -1, 1, Q("53.4 mm")))
sketch7.addConstraint(Sketcher.Constraint("DistanceX", 4, 3, 3, 3, Q("36.7 mm")))
sketch7.addConstraint(Sketcher.Constraint("DistanceX", 6, 3, 4, 3, Q("22.7 mm")))
sketch7.addConstraint(Sketcher.Constraint("DistanceX", -1, 1, 3, 3, Q("5.11 mm")))
sketch7.addConstraint(Sketcher.Constraint("DistanceY", -1, 1, 0, 3, Q("60.106 mm")))
sketch7.addConstraint(Sketcher.Constraint("DistanceY", -1, 1, 3, 3, Q("27.602 mm")))
pocket5 = doc.addObject("PartDesign::Pocket", "Pocket004")
body.addObject(pocket5)
pocket5.Profile = sketch7
pocket5.Length = 10

sketch8 = doc.addObject("Sketcher::SketchObject", "Sketch007")
body.addObject(sketch8)
sketch8.AttachmentSupport = (doc.XY_Plane, [""])
sketch8.MapMode = "FlatFace"
sketch8.AttachmentOffset = App.Placement(V(0, 0, -127), App.Rotation())
sketch8.addGeometry(Part.LineSegment(V(63, 39, 0), V(63, 16, 0)), False)
sketch8.addGeometry(Part.LineSegment(V(63, 16, 0), V(1, 16, 0)), False)
sketch8.addGeometry(Part.LineSegment(V(1, 16, 0), V(1, 39, 0)), False)
sketch8.addGeometry(Part.LineSegment(V(1, 39, 0), V(63, 39, 0)), False)
sketch8.addConstraint(Sketcher.Constraint("Coincident", 0, 2, 1, 1))
sketch8.addConstraint(Sketcher.Constraint("Coincident", 1, 2, 2, 1))
sketch8.addConstraint(Sketcher.Constraint("Coincident", 2, 2, 3, 1))
sketch8.addConstraint(Sketcher.Constraint("Coincident", 3, 2, 0, 1))
sketch8.addConstraint(Sketcher.Constraint("Vertical", 0))
sketch8.addConstraint(Sketcher.Constraint("Horizontal", 1))
sketch8.addConstraint(Sketcher.Constraint("Vertical", 2))
sketch8.addConstraint(Sketcher.Constraint("Horizontal", 3))
sketch8.addConstraint(Sketcher.Constraint("DistanceY", 0, 2, 0, 1, Q("23 mm")))
sketch8.addConstraint(Sketcher.Constraint("DistanceX", 1, 2, 1, 1, Q("61.6 mm")))
sketch8.addConstraint(Sketcher.Constraint("DistanceX", -1, 1, 0, 2, Q("63 mm")))
sketch8.addConstraint(Sketcher.Constraint("DistanceY", -1, 1, 0, 2, Q("16.35 mm")))
pocket6 = doc.addObject("PartDesign::Pocket", "Pocket005")
body.addObject(pocket6)
pocket6.Profile = sketch8
pocket6.Length = 5
pocket6.Reversed = True

sketch9 = doc.addObject("Sketcher::SketchObject", "Sketch008")
body.addObject(sketch9)
sketch9.AttachmentSupport = (doc.XZ_Plane, [""])
sketch9.MapMode = "FlatFace"
sketch9.addGeometry(Part.Circle(V(89.6, -54.8, 0), V(0, 0, 1), 2), False)
sketch9.addGeometry(Part.Circle(V(49.6, -54.8, 0), V(0, 0, 1), 2), False)
sketch9.addGeometry(Part.Circle(V(-41.5, -54.8, 0), V(0, 0, 1), 2), False)
sketch9.addGeometry(Part.Circle(V(-81.5, -54.8, 0), V(0, 0, 1), 2), False)
sketch9.addGeometry(Part.Circle(V(-41.5, 25.4, 0), V(0, 0, 1), 2), False)
sketch9.addGeometry(Part.Circle(V(-81.5, 25.4, 0), V(0, 0, 1), 2), False)
sketch9.addConstraint(Sketcher.Constraint("Equal", 0, 1))
sketch9.addConstraint(Sketcher.Constraint("Equal", 1, 2))
sketch9.addConstraint(Sketcher.Constraint("Equal", 2, 3))
sketch9.addConstraint(Sketcher.Constraint("Equal", 3, 4))
sketch9.addConstraint(Sketcher.Constraint("Equal", 4, 5))
sketch9.addConstraint(Sketcher.Constraint("Horizontal", 0, 3, 1, 3))
sketch9.addConstraint(Sketcher.Constraint("Horizontal", 1, 3, 2, 3))
sketch9.addConstraint(Sketcher.Constraint("Horizontal", 2, 3, 3, 3))
sketch9.addConstraint(Sketcher.Constraint("Horizontal", 4, 3, 5, 3))
sketch9.addConstraint(Sketcher.Constraint("Vertical", 2, 3, 4, 3))
sketch9.addConstraint(Sketcher.Constraint("Vertical", 3, 3, 5, 3))
sketch9.addConstraint(Sketcher.Constraint("Diameter", 0, Q("4 mm")))
sketch9.addConstraint(Sketcher.Constraint("DistanceX", 1, 3, 0, 3, Q("40 mm")))
sketch9.addConstraint(Sketcher.Constraint("DistanceX", 3, 3, 2, 3, Q("40 mm")))
sketch9.addConstraint(Sketcher.Constraint("DistanceY", 0, 3, -1, 1, Q("54.8 mm")))
sketch9.addConstraint(Sketcher.Constraint("DistanceX", 2, 3, -1, 1, Q("41.5 mm")))
sketch9.addConstraint(Sketcher.Constraint("DistanceY", -1, 1, 4, 3, Q("25.4 mm")))
sketch9.addConstraint(Sketcher.Constraint("DistanceX", -1, 1, 0, 3, Q("89.6088 mm")))
doc.recompute()
hole = doc.addObject("PartDesign::Hole", "Hole")
body.addObject(hole)
hole.Profile = sketch9
hole.ThreadType = "None"
hole.Diameter = 4
hole.DepthType = "ThroughAll"
hole.HoleCutType = "Counterbore"
hole.HoleCutDiameter = 6
hole.HoleCutDepth = 3

sketch10 = doc.addObject("Sketcher::SketchObject", "Sketch009")
body.addObject(sketch10)
sketch10.AttachmentSupport = (doc.YZ_Plane, [""])
sketch10.MapMode = "FlatFace"
sketch10.AttachmentOffset = App.Placement(V(0, 0, -123), App.Rotation())
sketch10.addGeometry(Part.Circle(V(48.6, 49.5, 0), V(0, 0, 1), 2), False)
sketch10.addGeometry(Part.Circle(V(95.7, 49.5, 0), V(0, 0, 1), 2), False)
sketch10.addGeometry(Part.Circle(V(48.6, -15.5, 0), V(0, 0, 1), 2), False)
sketch10.addGeometry(Part.Circle(V(95.7, -15.5, 0), V(0, 0, 1), 2), False)
sketch10.addGeometry(Part.Circle(V(48.6, -80.5, 0), V(0, 0, 1), 2), False)
sketch10.addGeometry(Part.Circle(V(95.7, -80.5, 0), V(0, 0, 1), 2), False)
sketch10.addConstraint(Sketcher.Constraint("Equal", 0, 1))
sketch10.addConstraint(Sketcher.Constraint("Equal", 1, 2))
sketch10.addConstraint(Sketcher.Constraint("Equal", 2, 3))
sketch10.addConstraint(Sketcher.Constraint("Equal", 3, 4))
sketch10.addConstraint(Sketcher.Constraint("Equal", 4, 5))
sketch10.addConstraint(Sketcher.Constraint("Horizontal", 0, 3, 1, 3))
sketch10.addConstraint(Sketcher.Constraint("Horizontal", 2, 3, 3, 3))
sketch10.addConstraint(Sketcher.Constraint("Horizontal", 4, 3, 5, 3))
sketch10.addConstraint(Sketcher.Constraint("Vertical", 0, 3, 2, 3))
sketch10.addConstraint(Sketcher.Constraint("Vertical", 1, 3, 3, 3))
sketch10.addConstraint(Sketcher.Constraint("Vertical", 2, 3, 4, 3))
sketch10.addConstraint(Sketcher.Constraint("Vertical", 3, 3, 5, 3))
sketch10.addConstraint(Sketcher.Constraint("Diameter", 0, Q("4 mm")))
sketch10.addConstraint(Sketcher.Constraint("DistanceX", 0, 3, 1, 3, Q("47 mm")))
sketch10.addConstraint(Sketcher.Constraint("DistanceY", 2, 3, 0, 3, Q("65 mm")))
sketch10.addConstraint(Sketcher.Constraint("DistanceY", 4, 3, 2, 3, Q("65 mm")))
sketch10.addConstraint(Sketcher.Constraint("DistanceY", -1, 1, 0, 3, Q("49.5 mm")))
sketch10.addConstraint(Sketcher.Constraint("DistanceX", -1, 1, 0, 3, Q("48.65 mm")))
doc.recompute()
hole2 = doc.addObject("PartDesign::Hole", "Hole001")
body.addObject(hole2)
hole2.Profile = sketch10
hole2.ThreadType = "None"
hole2.Diameter = 4
hole2.DepthType = "ThroughAll"

sketch11 = doc.addObject("Sketcher::SketchObject", "Sketch010")
body.addObject(sketch11)
sketch11.AttachmentSupport = (doc.XY_Plane, [""])
sketch11.MapMode = "FlatFace"
sketch11.AttachmentOffset = App.Placement(V(0, 0, -123), App.Rotation())
sketch11.addGeometry(Part.Circle(V(-65.1, 95.7, 0), V(0, 0, 1), 2), False)
sketch11.addGeometry(Part.Circle(V(-65.1, 48.6, 0), V(0, 0, 1), 2), False)
sketch11.addConstraint(Sketcher.Constraint("Equal", 0, 1))
sketch11.addConstraint(Sketcher.Constraint("Vertical", 0, 3, 1, 3))
sketch11.addConstraint(Sketcher.Constraint("Diameter", 0, Q("4 mm")))
sketch11.addConstraint(Sketcher.Constraint("DistanceY", 1, 3, 0, 3, Q("47 mm")))
sketch11.addConstraint(Sketcher.Constraint("DistanceX", 0, 3, -1, 1, Q("65.1 mm")))
sketch11.addConstraint(Sketcher.Constraint("DistanceY", -1, 1, 0, 3, Q("95.65 mm")))
doc.recompute()
hole3 = doc.addObject("PartDesign::Hole", "Hole002")
body.addObject(hole3)
hole3.Profile = sketch11
hole3.ThreadType = "None"
hole3.Diameter = 4
hole3.DepthType = "Dimension"
hole3.Depth = 5.3
hole3.DrillPoint = "Flat"

sketch12 = doc.addObject("Sketcher::SketchObject", "Sketch011")
body.addObject(sketch12)
sketch12.AttachmentSupport = (doc.XY_Plane, [""])
sketch12.MapMode = "FlatFace"
sketch12.AttachmentOffset = App.Placement(V(0, 0, -127), App.Rotation())
sketch12.addGeometry(Part.Circle(V(20.5, 75.7, 0), V(0, 0, 1), 1.8), False)
sketch12.addGeometry(Part.Circle(V(82.1, 52.7, 0), V(0, 0, 1), 1.8), False)
sketch12.addConstraint(Sketcher.Constraint("Equal", 0, 1))
sketch12.addConstraint(Sketcher.Constraint("Diameter", 0, Q("3.5 mm")))
sketch12.addConstraint(Sketcher.Constraint("DistanceY", 1, 3, 0, 3, Q("23 mm")))
sketch12.addConstraint(Sketcher.Constraint("DistanceX", 0, 3, 1, 3, Q("61.6 mm")))
sketch12.addConstraint(Sketcher.Constraint("DistanceX", -1, 1, 0, 3, Q("20.51 mm")))
sketch12.addConstraint(Sketcher.Constraint("DistanceY", -1, 1, 0, 3, Q("75.655 mm")))
doc.recompute()
hole4 = doc.addObject("PartDesign::Hole", "Hole003")
body.addObject(hole4)
hole4.Profile = sketch12
hole4.ThreadType = "None"
hole4.Diameter = 3.5
hole4.DepthType = "Dimension"
hole4.Depth = 5.5
hole4.DrillPoint = "Flat"
hole4.Reversed = True

doc.recompute()
